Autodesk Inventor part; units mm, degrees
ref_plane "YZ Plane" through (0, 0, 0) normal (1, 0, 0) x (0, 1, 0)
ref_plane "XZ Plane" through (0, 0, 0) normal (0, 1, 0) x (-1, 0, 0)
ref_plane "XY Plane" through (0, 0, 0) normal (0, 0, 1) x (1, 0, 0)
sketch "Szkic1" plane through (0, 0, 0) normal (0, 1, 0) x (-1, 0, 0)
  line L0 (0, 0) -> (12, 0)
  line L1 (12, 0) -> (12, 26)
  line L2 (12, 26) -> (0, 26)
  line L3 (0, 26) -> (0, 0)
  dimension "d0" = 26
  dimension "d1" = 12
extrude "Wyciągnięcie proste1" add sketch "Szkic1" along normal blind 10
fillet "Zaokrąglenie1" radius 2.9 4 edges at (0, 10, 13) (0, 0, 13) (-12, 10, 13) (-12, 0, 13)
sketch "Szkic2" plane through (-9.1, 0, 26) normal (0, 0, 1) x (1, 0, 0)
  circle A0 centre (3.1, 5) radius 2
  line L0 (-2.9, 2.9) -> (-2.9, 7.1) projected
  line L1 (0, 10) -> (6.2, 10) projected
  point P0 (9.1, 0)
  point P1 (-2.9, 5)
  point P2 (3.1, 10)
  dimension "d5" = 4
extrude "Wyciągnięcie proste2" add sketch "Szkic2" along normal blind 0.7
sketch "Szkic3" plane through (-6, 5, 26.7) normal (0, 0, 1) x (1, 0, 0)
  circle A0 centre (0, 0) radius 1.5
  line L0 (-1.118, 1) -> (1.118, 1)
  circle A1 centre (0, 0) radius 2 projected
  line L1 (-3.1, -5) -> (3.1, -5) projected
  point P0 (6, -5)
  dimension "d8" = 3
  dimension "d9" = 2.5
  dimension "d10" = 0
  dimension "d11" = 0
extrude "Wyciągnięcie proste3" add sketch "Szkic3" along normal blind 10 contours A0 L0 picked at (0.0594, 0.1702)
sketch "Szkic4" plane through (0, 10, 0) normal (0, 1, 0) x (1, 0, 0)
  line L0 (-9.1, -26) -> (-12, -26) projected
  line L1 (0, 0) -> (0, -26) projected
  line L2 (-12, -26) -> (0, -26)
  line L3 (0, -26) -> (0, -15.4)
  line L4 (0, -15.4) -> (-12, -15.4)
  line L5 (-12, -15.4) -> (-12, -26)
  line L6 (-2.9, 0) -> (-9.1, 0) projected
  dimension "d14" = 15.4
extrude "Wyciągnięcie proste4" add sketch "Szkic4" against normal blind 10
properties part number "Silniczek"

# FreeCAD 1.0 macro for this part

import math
import FreeCAD as App
import Part
import Sketcher
Q = App.Units.Quantity


def edges_at(feature, points):
    """Names of the edges that pass closest to the given points."""
    edges = feature.Shape.Edges
    near = lambda p: min(range(len(edges)), key=lambda i: edges[i].distToShape(Part.Vertex(*p))[0])
    return sorted({f"Edge{near(p) + 1}" for p in points})


def add_polygon(sketch, points):
    """Adds a closed chain of lines whose ends are joined by coincident constraints."""
    first, n = sketch.GeometryCount, len(points)
    for a, b in zip(points, points[1:] + points[:1]):
        sketch.addGeometry(Part.LineSegment(App.Vector(*a, 0), App.Vector(*b, 0)), False)
    for i in range(n):
        sketch.addConstraint(Sketcher.Constraint("Coincident", first + i, 2, first + (i + 1) % n, 1))

doc = App.newDocument("Part")
body = doc.addObject("PartDesign::Body", "Body")

# Sketch on XZ plane
sketch1 = body.newObject("Sketcher::SketchObject", "Sketch")
sketch1.AttachmentSupport = (doc.getObject("XZ_Plane"), [""])
sketch1.MapMode = "FlatFace"
add_polygon(sketch1, [(0, 26), (0, 0), (-12, 0), (-12, 26)])  # lines 0-3
sketch1.addConstraint(Sketcher.Constraint("Vertical", 0))
sketch1.addConstraint(Sketcher.Constraint("Horizontal", 1))
sketch1.addConstraint(Sketcher.Constraint("Vertical", 2))
sketch1.addConstraint(Sketcher.Constraint("Horizontal", 3))
sketch1.addConstraint(Sketcher.Constraint("Coincident", 0, 2, -1, 1))
sketch1.addConstraint(Sketcher.Constraint("DistanceX", 1, 2, 1, 1, Q("12 mm")))
sketch1.addConstraint(Sketcher.Constraint("DistanceY", 0, 2, 0, 1, Q("26 mm")))
pad1 = body.newObject("PartDesign::Pad", "Pad")
pad1.Profile = sketch1
pad1.Length = 10
pad1.Reversed = True
doc.recompute()

fillet = body.newObject("PartDesign::Fillet", "Fillet")
fillet.Base = (pad1, edges_at(pad1, [
    (0, 10, 13),
    (0, 0, 13),
    (-12, 10, 13),
    (-12, 0, 13),
]))
fillet.Radius = 2.9

# Sketch on XY plane
sketch2 = body.newObject("Sketcher::SketchObject", "Sketch001")
sketch2.AttachmentSupport = (doc.getObject("XY_Plane"), [""])
sketch2.MapMode = "FlatFace"
sketch2.AttachmentOffset = App.Placement(App.Vector(0, 0, 26), App.Rotation())
sketch2.addGeometry(Part.Circle(App.Vector(-6, 5, 0), App.Vector(0, 0, 1), 2), False)
sketch2.addConstraint(Sketcher.Constraint("Diameter", 0, Q("4 mm")))
sketch2.addConstraint(Sketcher.Constraint("DistanceX", 0, 3, -1, 1, Q("6 mm")))
sketch2.addConstraint(Sketcher.Constraint("DistanceY", -1, 1, 0, 3, Q("5 mm")))
pad2 = body.newObject("PartDesign::Pad", "Pad001")
pad2.Profile = sketch2
pad2.Length = 0.7

# Sketch on XY plane
sketch3 = body.newObject("Sketcher::SketchObject", "Sketch002")
sketch3.AttachmentSupport = (doc.getObject("XY_Plane"), [""])
sketch3.MapMode = "FlatFace"
sketch3.AttachmentOffset = App.Placement(App.Vector(0, 0, 26.7), App.Rotation())
sketch3.addGeometry(Part.ArcOfCircle(Part.Circle(App.Vector(-6, 5, 0), App.Vector(0, 0, 1), 1.5), math.radians(138), math.radians(402)), False)
sketch3.addGeometry(Part.LineSegment(App.Vector(-7.1, 6, 0), App.Vector(-4.9, 6, 0)), False)
sketch3.addConstraint(Sketcher.Constraint("Coincident", 0, 1, 1, 1))
sketch3.addConstraint(Sketcher.Constraint("Coincident", 1, 2, 0, 2))
sketch3.addConstraint(Sketcher.Constraint("Horizontal", 1))
sketch3.addConstraint(Sketcher.Constraint("Radius", 0, Q("1.5 mm")))
sketch3.addConstraint(Sketcher.Constraint("DistanceX", 0, 3, -1, 1, Q("6 mm")))
sketch3.addConstraint(Sketcher.Constraint("DistanceY", -1, 1, 0, 3, Q("5 mm")))
sketch3.addConstraint(Sketcher.Constraint("DistanceY", -1, 1, 0, 1, Q("6 mm")))
pad3 = body.newObject("PartDesign::Pad", "Pad002")
pad3.Profile = sketch3
pad3.Length = 10

# Sketch on XZ plane
sketch4 = body.newObject("Sketcher::SketchObject", "Sketch003")
sketch4.AttachmentSupport = (doc.getObject("XZ_Plane"), [""])
sketch4.MapMode = "FlatFace"
sketch4.AttachmentOffset = App.Placement(App.Vector(0, 0, -10), App.Rotation())
add_polygon(sketch4, [(-12, 26), (0, 26), (0, 15), (-12, 15)])  # lines 0-3
sketch4.addConstraint(Sketcher.Constraint("Horizontal", 0))
sketch4.addConstraint(Sketcher.Constraint("Vertical", 1))
sketch4.addConstraint(Sketcher.Constraint("Horizontal", 2))
sketch4.addConstraint(Sketcher.Constraint("Vertical", 3))
sketch4.addConstraint(Sketcher.Constraint("PointOnObject", 0, 2, -2))
sketch4.addConstraint(Sketcher.Constraint("DistanceY", -1, 1, 1, 2, Q("15.4 mm")))
sketch4.addConstraint(Sketcher.Constraint("DistanceX", 0, 1, 0, 2, Q("12 mm")))
sketch4.addConstraint(Sketcher.Constraint("DistanceY", 1, 2, 1, 1, Q("10.6 mm")))
pad4 = body.newObject("PartDesign::Pad", "Pad003")
pad4.Profile = sketch4
pad4.Length = 10

doc.recompute()
